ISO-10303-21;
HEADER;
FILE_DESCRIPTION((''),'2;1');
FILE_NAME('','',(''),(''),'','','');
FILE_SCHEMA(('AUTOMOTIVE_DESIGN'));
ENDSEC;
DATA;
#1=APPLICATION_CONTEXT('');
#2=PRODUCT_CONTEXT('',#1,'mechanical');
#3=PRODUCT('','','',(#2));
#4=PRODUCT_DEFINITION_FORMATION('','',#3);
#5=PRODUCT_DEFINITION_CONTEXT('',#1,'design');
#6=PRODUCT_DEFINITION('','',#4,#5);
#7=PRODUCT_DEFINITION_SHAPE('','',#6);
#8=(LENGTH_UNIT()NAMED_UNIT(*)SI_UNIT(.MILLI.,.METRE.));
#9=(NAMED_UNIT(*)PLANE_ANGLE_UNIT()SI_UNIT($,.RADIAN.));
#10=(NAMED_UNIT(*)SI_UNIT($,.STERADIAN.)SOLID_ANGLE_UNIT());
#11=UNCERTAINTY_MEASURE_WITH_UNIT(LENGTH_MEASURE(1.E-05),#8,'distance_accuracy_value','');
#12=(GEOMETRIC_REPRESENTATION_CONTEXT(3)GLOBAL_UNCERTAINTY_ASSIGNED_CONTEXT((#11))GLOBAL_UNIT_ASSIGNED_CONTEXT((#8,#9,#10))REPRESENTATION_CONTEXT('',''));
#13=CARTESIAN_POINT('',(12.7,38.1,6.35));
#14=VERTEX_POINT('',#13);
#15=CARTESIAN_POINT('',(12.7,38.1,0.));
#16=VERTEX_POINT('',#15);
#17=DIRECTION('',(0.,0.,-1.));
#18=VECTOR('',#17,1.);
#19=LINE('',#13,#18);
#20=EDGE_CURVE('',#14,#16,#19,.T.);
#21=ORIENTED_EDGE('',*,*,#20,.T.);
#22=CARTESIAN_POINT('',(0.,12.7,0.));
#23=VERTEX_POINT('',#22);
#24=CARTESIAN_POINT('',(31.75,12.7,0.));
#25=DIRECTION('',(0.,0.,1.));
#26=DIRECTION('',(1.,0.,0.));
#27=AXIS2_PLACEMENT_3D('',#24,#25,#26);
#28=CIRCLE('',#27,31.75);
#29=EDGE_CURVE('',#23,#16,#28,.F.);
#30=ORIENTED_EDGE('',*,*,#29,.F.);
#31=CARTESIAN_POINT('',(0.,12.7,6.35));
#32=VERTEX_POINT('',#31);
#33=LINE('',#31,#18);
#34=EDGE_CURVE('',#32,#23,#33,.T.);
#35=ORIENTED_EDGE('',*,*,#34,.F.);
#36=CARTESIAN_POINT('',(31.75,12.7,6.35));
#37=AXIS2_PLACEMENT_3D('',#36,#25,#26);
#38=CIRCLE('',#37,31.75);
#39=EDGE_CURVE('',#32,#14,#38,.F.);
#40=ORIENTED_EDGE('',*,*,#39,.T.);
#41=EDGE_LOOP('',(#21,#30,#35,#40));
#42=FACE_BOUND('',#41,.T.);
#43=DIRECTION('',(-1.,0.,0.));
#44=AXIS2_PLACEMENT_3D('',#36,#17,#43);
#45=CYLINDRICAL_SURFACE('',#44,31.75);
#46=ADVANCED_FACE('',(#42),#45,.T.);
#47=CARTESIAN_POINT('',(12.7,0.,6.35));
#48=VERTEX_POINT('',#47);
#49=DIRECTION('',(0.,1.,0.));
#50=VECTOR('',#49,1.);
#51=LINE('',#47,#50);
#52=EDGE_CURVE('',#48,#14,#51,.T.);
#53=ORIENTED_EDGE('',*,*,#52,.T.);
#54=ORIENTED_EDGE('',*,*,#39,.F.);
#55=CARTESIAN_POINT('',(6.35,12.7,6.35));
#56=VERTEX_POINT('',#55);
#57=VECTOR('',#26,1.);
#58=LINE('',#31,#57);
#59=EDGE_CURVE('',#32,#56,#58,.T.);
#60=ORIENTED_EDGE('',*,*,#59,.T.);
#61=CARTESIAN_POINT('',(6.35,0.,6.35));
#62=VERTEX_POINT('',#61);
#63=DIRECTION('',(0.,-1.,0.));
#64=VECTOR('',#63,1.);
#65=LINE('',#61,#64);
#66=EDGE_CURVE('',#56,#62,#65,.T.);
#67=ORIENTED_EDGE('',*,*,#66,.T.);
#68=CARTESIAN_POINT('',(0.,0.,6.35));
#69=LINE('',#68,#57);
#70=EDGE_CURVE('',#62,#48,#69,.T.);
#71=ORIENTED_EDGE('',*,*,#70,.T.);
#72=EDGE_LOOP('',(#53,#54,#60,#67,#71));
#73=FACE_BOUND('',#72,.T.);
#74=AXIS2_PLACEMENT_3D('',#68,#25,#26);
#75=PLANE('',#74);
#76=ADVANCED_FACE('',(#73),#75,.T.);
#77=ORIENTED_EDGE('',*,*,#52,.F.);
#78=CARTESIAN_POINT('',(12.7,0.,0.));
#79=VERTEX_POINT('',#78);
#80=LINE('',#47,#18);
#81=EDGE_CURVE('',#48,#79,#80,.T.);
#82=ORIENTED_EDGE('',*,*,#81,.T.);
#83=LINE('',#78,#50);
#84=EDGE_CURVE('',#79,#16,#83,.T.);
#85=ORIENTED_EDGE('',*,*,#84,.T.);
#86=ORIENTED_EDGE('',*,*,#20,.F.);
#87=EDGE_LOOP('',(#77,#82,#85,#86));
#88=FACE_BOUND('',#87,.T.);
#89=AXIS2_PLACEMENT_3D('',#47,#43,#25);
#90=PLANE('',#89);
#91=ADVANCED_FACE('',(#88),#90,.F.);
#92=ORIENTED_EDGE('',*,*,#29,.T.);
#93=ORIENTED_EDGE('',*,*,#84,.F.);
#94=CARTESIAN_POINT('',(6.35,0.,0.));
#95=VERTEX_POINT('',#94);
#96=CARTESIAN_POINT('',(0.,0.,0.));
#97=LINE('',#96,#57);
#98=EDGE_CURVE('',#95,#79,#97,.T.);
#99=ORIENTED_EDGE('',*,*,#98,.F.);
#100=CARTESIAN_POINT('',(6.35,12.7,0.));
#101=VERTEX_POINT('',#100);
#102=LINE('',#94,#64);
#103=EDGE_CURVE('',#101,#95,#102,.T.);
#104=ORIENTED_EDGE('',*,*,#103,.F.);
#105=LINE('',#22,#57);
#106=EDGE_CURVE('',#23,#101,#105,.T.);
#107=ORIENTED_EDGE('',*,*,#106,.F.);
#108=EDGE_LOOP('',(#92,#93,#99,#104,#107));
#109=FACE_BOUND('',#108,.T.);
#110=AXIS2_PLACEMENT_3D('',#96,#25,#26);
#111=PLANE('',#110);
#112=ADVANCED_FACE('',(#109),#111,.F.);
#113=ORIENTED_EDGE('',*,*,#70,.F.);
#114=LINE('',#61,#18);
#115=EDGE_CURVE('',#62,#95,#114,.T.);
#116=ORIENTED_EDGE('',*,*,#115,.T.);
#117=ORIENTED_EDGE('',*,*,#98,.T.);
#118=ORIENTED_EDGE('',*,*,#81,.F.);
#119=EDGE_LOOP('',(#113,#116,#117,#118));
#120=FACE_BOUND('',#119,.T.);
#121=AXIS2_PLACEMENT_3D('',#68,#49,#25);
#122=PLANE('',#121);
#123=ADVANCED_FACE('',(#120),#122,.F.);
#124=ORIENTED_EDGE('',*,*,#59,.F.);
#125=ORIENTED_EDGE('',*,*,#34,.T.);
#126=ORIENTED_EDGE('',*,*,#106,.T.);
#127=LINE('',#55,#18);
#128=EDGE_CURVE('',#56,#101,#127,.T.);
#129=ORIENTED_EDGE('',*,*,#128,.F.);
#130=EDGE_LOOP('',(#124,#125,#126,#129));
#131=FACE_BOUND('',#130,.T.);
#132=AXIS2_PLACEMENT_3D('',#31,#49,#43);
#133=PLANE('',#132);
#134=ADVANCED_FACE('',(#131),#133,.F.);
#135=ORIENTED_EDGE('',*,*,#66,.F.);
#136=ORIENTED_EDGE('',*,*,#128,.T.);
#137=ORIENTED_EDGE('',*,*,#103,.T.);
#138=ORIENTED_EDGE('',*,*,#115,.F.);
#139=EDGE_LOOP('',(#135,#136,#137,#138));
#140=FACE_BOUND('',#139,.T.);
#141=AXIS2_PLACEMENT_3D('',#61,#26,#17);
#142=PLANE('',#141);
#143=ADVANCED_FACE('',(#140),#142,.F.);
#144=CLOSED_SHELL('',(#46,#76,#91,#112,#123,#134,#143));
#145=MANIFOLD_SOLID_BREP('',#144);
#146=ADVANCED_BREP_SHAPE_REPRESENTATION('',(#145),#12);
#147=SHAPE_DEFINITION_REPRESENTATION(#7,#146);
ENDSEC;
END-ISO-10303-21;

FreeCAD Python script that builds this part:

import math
import FreeCAD as App
import Part
import Sketcher
Q = App.Units.Quantity

doc = App.newDocument("Part")
body = doc.addObject("PartDesign::Body", "Body")

sketch1 = body.newObject("Sketcher::SketchObject", "Sketch")
sketch1.AttachmentSupport = (doc.getObject("XY_Plane"), [""])
sketch1.MapMode = "FlatFace"
sketch1.addGeometry(Part.LineSegment(App.Vector(6, 13, 0), App.Vector(6, 0, 0)), False)
sketch1.addGeometry(Part.LineSegment(App.Vector(6, 0, 0), App.Vector(13, 0, 0)), False)
sketch1.addGeometry(Part.LineSegment(App.Vector(13, 0, 0), App.Vector(13, 38, 0)), False)
sketch1.addGeometry(Part.ArcOfCircle(Part.Circle(App.Vector(32, 13, 0), App.Vector(0, 0, 1), 32), math.radians(127), math.radians(180)), False)
sketch1.addGeometry(Part.LineSegment(App.Vector(0, 13, 0), App.Vector(6, 13, 0)), False)
sketch1.addConstraint(Sketcher.Constraint("Coincident", 0, 2, 1, 1))
sketch1.addConstraint(Sketcher.Constraint("Coincident", 1, 2, 2, 1))
sketch1.addConstraint(Sketcher.Constraint("Coincident", 2, 2, 3, 1))
sketch1.addConstraint(Sketcher.Constraint("Coincident", 3, 2, 4, 1))
sketch1.addConstraint(Sketcher.Constraint("Coincident", 4, 2, 0, 1))
sketch1.addConstraint(Sketcher.Constraint("Vertical", 0))
sketch1.addConstraint(Sketcher.Constraint("Horizontal", 1))
sketch1.addConstraint(Sketcher.Constraint("Vertical", 2))
sketch1.addConstraint(Sketcher.Constraint("Horizontal", 4))
sketch1.addConstraint(Sketcher.Constraint("PointOnObject", 0, 2, -1))
sketch1.addConstraint(Sketcher.Constraint("PointOnObject", 3, 2, -2))
sketch1.addConstraint(Sketcher.Constraint("Equal", 1, 4))
sketch1.addConstraint(Sketcher.Constraint("Radius", 3, Q("1.25 in")))
sketch1.addConstraint(Sketcher.Constraint("DistanceY", 0, 2, 0, 1, Q("0.5 in")))
sketch1.addConstraint(Sketcher.Constraint("DistanceY", 2, 1, 2, 2, Q("1.5 in")))
sketch1.addConstraint(Sketcher.Constraint("DistanceX", 0, 2, 3, 3, Q("1 in")))
pad1 = body.newObject("PartDesign::Pad", "Pad")
pad1.Profile = sketch1
pad1.Length = Q("0.25 in")

doc.recompute()
